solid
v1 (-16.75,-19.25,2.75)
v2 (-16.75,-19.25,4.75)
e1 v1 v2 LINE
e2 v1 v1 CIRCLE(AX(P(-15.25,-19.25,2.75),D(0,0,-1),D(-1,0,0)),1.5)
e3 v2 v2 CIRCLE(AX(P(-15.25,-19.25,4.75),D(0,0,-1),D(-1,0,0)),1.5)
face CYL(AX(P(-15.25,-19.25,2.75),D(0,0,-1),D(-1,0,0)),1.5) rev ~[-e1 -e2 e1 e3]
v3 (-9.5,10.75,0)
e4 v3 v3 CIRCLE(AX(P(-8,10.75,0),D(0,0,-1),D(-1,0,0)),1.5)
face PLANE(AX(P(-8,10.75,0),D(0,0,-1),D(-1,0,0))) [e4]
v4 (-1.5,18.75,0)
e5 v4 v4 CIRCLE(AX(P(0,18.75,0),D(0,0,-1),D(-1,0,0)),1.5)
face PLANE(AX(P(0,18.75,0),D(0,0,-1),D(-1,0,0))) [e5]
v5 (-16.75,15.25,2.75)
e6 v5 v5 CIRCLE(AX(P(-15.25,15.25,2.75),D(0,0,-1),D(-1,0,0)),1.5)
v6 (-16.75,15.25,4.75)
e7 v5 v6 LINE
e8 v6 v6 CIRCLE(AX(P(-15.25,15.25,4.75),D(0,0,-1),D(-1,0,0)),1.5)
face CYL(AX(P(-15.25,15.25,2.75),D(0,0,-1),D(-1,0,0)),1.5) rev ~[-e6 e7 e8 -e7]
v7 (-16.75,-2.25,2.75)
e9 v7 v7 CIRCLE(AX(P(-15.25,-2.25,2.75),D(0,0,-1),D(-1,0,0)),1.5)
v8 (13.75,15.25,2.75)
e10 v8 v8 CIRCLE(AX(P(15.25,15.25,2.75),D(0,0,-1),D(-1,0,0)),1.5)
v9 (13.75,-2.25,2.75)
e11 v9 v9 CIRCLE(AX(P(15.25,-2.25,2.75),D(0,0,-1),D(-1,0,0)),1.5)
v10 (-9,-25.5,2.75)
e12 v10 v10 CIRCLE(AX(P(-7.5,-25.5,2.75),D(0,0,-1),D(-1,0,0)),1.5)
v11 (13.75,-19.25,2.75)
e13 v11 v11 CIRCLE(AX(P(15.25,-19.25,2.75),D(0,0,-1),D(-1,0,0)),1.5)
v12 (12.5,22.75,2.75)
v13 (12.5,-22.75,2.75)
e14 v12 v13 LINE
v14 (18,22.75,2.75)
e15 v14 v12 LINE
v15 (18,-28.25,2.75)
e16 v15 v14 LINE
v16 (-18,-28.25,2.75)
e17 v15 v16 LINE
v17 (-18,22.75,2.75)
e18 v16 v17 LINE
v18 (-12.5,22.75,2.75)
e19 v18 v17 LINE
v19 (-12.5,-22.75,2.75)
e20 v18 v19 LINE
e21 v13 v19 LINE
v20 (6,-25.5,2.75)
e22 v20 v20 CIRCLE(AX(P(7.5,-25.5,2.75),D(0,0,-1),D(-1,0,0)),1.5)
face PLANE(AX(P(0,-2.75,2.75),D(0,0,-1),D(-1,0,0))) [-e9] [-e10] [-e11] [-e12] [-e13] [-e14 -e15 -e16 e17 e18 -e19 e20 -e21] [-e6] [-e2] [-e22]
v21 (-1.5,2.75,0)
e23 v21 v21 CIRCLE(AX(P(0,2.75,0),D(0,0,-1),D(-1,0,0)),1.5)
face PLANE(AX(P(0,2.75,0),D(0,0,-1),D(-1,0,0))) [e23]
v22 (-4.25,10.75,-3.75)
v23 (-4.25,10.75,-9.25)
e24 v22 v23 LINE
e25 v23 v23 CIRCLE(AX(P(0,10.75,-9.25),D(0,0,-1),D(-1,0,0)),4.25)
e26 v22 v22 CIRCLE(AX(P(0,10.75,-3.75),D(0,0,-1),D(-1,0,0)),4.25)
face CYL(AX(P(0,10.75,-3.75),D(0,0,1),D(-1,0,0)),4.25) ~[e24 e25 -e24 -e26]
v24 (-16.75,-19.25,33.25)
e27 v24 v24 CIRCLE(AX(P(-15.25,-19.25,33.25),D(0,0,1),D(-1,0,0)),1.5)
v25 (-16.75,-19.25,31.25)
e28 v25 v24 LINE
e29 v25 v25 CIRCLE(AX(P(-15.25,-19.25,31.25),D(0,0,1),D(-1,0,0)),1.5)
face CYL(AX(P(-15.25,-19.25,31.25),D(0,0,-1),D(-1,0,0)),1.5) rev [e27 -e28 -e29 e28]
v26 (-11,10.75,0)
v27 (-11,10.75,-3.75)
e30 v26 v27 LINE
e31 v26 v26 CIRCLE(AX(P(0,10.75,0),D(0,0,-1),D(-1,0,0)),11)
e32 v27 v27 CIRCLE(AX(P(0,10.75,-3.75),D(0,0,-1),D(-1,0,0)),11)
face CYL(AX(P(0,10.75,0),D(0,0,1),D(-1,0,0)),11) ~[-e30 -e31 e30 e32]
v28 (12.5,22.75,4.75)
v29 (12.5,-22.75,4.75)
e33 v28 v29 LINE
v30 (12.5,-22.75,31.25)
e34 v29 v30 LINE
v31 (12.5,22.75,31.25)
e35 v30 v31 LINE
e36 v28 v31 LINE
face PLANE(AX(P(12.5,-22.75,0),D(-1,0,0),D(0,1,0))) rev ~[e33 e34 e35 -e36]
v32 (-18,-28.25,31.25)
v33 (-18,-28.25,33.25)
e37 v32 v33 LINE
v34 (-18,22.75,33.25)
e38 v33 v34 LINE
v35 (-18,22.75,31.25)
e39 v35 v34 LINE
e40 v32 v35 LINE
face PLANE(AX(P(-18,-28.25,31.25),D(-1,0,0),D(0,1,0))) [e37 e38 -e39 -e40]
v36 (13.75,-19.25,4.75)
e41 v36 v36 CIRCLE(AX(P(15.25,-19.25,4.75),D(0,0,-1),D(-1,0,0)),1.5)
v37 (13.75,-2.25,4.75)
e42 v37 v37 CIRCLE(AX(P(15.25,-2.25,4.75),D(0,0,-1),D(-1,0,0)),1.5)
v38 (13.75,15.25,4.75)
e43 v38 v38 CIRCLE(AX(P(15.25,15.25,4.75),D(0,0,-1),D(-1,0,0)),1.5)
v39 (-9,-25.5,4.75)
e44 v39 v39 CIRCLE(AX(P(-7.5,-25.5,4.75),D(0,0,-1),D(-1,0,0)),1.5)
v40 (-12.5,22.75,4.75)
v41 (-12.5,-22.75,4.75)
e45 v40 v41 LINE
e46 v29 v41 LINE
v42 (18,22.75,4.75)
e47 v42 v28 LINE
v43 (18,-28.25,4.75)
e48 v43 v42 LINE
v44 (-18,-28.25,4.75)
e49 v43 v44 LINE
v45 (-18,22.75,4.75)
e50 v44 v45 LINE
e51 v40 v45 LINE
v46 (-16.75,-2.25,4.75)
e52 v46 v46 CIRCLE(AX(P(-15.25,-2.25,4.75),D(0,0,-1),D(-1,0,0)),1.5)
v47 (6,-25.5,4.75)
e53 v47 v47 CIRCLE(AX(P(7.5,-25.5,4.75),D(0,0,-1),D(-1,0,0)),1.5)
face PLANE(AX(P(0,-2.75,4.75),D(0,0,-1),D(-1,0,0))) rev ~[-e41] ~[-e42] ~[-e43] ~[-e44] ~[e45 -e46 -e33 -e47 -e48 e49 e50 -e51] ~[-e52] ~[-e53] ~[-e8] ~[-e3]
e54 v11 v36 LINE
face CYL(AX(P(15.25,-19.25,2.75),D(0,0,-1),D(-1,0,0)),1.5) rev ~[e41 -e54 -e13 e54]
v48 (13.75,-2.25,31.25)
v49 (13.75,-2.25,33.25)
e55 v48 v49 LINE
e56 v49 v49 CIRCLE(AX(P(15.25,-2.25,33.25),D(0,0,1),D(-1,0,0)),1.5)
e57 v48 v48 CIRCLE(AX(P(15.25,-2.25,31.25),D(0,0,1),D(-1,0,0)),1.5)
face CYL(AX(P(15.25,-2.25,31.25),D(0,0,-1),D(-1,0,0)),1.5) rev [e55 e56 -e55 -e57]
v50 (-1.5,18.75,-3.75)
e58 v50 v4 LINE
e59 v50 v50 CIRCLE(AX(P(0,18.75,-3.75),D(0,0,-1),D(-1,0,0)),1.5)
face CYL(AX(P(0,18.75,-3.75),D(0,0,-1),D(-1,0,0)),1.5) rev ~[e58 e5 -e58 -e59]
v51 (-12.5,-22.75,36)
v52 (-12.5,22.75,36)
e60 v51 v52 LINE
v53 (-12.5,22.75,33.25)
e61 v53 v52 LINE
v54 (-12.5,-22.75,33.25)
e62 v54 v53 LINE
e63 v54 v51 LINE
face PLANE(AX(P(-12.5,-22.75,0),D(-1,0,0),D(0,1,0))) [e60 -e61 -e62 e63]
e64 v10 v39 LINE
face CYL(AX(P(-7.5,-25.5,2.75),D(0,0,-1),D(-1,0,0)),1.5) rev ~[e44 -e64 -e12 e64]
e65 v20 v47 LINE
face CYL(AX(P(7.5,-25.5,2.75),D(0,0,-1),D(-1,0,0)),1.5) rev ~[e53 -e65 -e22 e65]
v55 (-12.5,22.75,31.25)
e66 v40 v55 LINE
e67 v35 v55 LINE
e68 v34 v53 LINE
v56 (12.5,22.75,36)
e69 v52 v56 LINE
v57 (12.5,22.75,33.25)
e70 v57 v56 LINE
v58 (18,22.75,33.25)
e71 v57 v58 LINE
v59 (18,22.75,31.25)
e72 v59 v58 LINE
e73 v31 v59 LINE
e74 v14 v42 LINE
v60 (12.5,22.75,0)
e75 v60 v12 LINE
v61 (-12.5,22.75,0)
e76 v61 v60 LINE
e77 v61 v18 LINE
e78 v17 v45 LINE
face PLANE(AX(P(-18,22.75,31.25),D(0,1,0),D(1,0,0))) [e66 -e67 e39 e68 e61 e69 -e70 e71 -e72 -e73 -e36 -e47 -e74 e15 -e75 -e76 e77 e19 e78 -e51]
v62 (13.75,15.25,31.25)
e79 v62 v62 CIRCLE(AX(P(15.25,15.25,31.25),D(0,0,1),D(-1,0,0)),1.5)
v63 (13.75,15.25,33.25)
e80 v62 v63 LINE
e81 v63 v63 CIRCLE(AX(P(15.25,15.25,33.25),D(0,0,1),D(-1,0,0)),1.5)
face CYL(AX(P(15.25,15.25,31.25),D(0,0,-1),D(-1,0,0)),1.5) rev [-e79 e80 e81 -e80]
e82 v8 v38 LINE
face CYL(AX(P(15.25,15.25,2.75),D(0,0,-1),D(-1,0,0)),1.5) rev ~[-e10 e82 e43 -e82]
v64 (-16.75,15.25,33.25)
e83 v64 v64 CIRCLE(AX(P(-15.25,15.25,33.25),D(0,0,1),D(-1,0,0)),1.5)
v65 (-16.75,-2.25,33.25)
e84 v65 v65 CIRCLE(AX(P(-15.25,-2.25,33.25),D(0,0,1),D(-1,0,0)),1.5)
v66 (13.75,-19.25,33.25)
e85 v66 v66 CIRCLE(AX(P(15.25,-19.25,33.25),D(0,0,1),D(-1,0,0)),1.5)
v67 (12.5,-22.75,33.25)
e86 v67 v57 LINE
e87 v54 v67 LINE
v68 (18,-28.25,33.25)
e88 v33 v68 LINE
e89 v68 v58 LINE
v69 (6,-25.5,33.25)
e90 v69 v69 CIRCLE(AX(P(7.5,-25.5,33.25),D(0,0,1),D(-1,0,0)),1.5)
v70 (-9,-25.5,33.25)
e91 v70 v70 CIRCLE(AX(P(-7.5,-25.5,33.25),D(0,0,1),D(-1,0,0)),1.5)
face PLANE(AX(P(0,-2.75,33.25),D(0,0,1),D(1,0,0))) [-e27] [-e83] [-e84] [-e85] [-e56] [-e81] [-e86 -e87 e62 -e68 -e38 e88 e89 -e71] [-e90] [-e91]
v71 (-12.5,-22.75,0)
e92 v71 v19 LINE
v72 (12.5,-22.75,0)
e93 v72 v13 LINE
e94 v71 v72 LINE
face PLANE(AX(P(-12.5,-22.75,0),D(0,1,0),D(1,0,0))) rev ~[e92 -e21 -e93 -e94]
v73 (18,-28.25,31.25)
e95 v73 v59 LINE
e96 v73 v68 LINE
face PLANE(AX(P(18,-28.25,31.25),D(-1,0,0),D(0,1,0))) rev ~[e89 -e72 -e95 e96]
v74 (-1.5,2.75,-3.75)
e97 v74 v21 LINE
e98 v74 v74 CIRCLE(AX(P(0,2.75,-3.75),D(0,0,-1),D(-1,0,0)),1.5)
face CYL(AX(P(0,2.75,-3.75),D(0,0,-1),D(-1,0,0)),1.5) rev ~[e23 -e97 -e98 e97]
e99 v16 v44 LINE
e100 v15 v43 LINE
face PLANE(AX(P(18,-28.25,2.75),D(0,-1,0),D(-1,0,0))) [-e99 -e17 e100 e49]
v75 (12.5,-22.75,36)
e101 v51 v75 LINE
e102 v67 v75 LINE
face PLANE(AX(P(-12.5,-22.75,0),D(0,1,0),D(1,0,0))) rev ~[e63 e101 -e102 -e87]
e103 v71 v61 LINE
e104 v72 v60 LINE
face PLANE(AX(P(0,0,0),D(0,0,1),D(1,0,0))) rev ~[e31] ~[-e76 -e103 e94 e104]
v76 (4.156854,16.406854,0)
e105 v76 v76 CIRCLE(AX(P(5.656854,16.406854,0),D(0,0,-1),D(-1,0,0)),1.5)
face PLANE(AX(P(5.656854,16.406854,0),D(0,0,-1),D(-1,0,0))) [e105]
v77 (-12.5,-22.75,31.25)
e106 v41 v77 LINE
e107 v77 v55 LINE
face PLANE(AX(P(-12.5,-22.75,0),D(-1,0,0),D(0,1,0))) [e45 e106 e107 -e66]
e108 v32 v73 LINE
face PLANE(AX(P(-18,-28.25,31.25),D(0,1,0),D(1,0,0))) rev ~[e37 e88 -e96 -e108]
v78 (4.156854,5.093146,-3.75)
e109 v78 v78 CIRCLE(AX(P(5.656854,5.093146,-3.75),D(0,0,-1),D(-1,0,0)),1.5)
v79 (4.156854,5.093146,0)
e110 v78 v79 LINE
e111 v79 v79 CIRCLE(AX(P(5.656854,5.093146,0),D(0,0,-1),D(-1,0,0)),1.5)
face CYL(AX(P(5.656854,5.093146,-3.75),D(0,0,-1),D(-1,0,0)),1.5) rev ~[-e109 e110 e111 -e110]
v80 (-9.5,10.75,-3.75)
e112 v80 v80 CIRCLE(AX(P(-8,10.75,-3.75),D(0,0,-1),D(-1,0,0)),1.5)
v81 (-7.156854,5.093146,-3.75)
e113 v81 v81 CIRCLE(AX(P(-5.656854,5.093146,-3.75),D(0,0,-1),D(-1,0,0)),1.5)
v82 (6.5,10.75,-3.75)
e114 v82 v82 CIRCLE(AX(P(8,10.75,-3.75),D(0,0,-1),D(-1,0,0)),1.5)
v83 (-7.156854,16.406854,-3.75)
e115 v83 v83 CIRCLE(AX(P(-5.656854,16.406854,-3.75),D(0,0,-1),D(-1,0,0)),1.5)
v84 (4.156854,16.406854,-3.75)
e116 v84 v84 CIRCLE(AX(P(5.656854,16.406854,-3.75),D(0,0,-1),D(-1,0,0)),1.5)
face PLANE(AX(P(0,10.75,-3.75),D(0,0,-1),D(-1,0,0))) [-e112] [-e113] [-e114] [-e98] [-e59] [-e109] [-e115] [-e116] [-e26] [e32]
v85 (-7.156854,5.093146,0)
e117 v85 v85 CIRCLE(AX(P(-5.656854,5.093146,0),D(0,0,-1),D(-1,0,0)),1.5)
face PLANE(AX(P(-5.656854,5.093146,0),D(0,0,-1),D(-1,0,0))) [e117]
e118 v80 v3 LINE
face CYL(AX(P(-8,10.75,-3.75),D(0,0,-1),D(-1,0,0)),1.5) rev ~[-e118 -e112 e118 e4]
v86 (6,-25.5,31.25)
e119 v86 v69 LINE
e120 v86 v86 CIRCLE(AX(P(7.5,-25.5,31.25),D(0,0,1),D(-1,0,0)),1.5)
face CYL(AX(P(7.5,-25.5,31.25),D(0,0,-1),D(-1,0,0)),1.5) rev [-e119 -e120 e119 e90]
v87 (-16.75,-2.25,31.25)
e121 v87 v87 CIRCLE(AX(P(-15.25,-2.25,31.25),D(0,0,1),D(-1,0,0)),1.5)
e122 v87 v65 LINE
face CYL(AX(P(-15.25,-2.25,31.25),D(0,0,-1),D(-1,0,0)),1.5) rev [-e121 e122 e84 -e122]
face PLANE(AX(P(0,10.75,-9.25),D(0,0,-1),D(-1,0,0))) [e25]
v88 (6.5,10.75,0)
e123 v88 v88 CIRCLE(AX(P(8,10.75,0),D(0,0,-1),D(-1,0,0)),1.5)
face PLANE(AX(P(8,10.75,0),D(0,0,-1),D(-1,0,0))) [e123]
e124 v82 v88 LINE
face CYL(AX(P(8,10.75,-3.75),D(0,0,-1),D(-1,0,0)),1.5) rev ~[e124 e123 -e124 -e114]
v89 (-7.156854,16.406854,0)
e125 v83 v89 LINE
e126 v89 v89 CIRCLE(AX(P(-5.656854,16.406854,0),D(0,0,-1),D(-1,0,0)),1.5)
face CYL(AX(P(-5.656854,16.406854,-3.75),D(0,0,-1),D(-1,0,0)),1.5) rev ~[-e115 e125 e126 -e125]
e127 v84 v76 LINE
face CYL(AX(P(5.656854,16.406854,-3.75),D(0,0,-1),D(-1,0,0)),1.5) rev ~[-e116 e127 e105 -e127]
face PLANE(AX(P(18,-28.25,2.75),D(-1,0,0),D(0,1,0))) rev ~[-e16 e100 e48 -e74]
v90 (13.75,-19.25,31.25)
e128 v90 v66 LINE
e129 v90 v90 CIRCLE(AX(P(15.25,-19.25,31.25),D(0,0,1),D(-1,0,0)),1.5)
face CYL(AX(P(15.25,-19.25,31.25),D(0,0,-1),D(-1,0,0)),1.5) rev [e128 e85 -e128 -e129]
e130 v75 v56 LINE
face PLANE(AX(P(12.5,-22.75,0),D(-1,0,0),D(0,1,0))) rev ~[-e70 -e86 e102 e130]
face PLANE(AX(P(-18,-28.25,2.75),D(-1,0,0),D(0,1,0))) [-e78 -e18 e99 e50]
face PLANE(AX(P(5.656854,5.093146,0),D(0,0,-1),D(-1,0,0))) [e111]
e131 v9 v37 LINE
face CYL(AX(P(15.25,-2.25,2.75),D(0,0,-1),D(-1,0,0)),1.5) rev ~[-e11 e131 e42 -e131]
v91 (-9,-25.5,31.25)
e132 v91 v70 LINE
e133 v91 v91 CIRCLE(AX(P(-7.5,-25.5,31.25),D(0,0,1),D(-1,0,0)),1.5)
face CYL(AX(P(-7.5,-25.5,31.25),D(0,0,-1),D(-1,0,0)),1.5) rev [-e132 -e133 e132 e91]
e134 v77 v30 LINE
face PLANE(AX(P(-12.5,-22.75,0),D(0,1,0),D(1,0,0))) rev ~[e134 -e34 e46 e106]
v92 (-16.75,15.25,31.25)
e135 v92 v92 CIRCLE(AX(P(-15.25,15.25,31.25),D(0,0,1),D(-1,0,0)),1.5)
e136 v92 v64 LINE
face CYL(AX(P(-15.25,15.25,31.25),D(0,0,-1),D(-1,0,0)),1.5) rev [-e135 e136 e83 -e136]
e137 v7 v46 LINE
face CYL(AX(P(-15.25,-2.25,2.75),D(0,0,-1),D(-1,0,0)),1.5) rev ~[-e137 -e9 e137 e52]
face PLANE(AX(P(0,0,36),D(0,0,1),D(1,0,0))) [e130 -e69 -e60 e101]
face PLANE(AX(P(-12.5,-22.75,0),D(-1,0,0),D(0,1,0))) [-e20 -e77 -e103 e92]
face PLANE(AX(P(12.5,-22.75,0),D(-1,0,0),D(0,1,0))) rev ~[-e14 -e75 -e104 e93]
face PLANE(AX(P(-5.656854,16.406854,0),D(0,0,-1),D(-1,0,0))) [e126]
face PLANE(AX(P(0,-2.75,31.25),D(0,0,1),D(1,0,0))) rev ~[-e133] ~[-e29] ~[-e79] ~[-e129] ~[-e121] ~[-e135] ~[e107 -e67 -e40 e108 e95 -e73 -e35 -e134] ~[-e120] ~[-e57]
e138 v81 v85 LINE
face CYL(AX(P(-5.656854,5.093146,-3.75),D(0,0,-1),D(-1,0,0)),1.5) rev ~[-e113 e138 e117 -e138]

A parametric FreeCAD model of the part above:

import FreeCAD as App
import Part
import Sketcher

V = App.Vector


def add_polygon(sketch, points):
    """Adds a closed chain of lines whose ends are joined by coincident constraints."""
    first, n = sketch.GeometryCount, len(points)
    for a, b in zip(points, points[1:] + points[:1]):
        sketch.addGeometry(Part.LineSegment(App.Vector(*a, 0), App.Vector(*b, 0)), False)
    for i in range(n):
        sketch.addConstraint(Sketcher.Constraint("Coincident", first + i, 2, first + (i + 1) % n, 1))

doc = App.newDocument("Part")
body = doc.addObject("PartDesign::Body", "Body")

# Sketch on XY plane
sketch1 = doc.addObject("Sketcher::SketchObject", "Sketch")
body.addObject(sketch1)
sketch1.AttachmentSupport = (doc.XY_Plane, [""])
sketch1.MapMode = "FlatFace"
add_polygon(sketch1, [(-12, 23), (-12, -23), (12, -23), (12, 23)])  # lines 0-3
sketch1.addConstraint([
    Sketcher.Constraint("Vertical", 0),
    Sketcher.Constraint("Horizontal", 1),
    Sketcher.Constraint("Vertical", 2),
    Sketcher.Constraint("Horizontal", 3),
    Sketcher.Constraint("Symmetric", 0, 2, 2, 2, -1, 1),
    Sketcher.Constraint("DistanceX", 1, 1, 1, 2, 25.0),
    Sketcher.Constraint("DistanceY", 0, 2, 0, 1, 45.5),
])
pad1 = doc.addObject("PartDesign::Pad", "Pad")
body.addObject(pad1)
pad1.Profile = sketch1
pad1.Length = 36

# Sketch on XY plane
sketch2 = doc.addObject("Sketcher::SketchObject", "Sketch001")
body.addObject(sketch2)
sketch2.AttachmentSupport = (doc.XY_Plane, [""])
sketch2.MapMode = "FlatFace"
sketch2.AttachmentOffset = App.Placement(V(0, 0, 2.75), App.Rotation())
add_polygon(sketch2, [(18, 22.8), (18, -28.2), (-18, -28.2), (-18, 22.8)])  # lines 0-3
sketch2.addGeometry(Part.Circle(V(15.2, -19.2, 0), V(0, 0, 1), 1.5), False)  # 4
sketch2.addGeometry(Part.Circle(V(7.5, -25.5, 0), V(0, 0, 1), 1.5), False)  # 5
sketch2.addGeometry(Part.Circle(V(-7.5, -25.5, 0), V(0, 0, 1), 1.5), False)  # 6
sketch2.addGeometry(Part.Circle(V(-15.2, -19.2, 0), V(0, 0, 1), 1.5), False)  # 7
sketch2.addGeometry(Part.Circle(V(15.2, -2.2, 0), V(0, 0, 1), 1.5), False)  # 8
sketch2.addGeometry(Part.Circle(V(15.2, 15.2, 0), V(0, 0, 1), 1.5), False)  # 9
sketch2.addGeometry(Part.Circle(V(-15.2, -2.2, 0), V(0, 0, 1), 1.5), False)  # 10
sketch2.addGeometry(Part.Circle(V(-15.2, 15.2, 0), V(0, 0, 1), 1.5), False)  # 11
sketch2.addConstraint([
    Sketcher.Constraint("Vertical", 0),
    Sketcher.Constraint("Horizontal", 1),
    Sketcher.Constraint("Vertical", 2),
    Sketcher.Constraint("Horizontal", 3),
    Sketcher.Constraint("Equal", 4, 5),
    Sketcher.Constraint("Equal", 5, 6),
    Sketcher.Constraint("Equal", 6, 7),
    Sketcher.Constraint("Equal", 7, 8),
    Sketcher.Constraint("Equal", 8, 9),
    Sketcher.Constraint("Equal", 9, 10),
    Sketcher.Constraint("Equal", 10, 11),
    Sketcher.Constraint("Symmetric", 5, 3, 6, 3, -2),
    Sketcher.Constraint("Symmetric", 4, 3, 7, 3, -2),
    Sketcher.Constraint("Symmetric", 8, 3, 10, 3, -2),
    Sketcher.Constraint("Symmetric", 9, 3, 11, 3, -2),
    Sketcher.Constraint("Vertical", 4, 3, 8, 3),
    Sketcher.Constraint("Vertical", 8, 3, 9, 3),
    Sketcher.Constraint("Diameter", 4, 3.0),
    Sketcher.Constraint("DistanceX", 1, 2, 1, 1, 36.0),
    Sketcher.Constraint("DistanceY", 0, 2, 0, 1, 51.0),
    Sketcher.Constraint("DistanceX", -1, 1, 0, 2, 18.0),
    Sketcher.Constraint("DistanceX", 6, 3, 5, 3, 15.0),
    Sketcher.Constraint("DistanceY", 4, 3, 8, 3, 17.0),
    Sketcher.Constraint("DistanceY", 0, 2, 4, 3, 9.0),
    Sketcher.Constraint("DistanceY", 5, 3, -1, 1, 25.5),
    Sketcher.Constraint("DistanceX", 7, 3, 4, 3, 30.5),
    Sketcher.Constraint("DistanceY", 8, 3, 9, 3, 17.5),
    Sketcher.Constraint("DistanceY", 4, 3, -1, 1, 19.25),
])
pad2 = doc.addObject("PartDesign::Pad", "Pad001")
body.addObject(pad2)
pad2.Profile = sketch2
pad2.Length = 2

# Sketch on XY plane
sketch3 = doc.addObject("Sketcher::SketchObject", "Sketch002")
body.addObject(sketch3)
sketch3.AttachmentSupport = (doc.XY_Plane, [""])
sketch3.MapMode = "FlatFace"
sketch3.addGeometry(Part.Circle(V(0, 11, 0), V(0, 0, 1), 11), False)
sketch3.addConstraint([
    Sketcher.Constraint("PointOnObject", 0, 3, -2),
    Sketcher.Constraint("Diameter", 0, 22.0),
    Sketcher.Constraint("DistanceY", -1, 1, 0, 3, 10.75),
])
pad3 = doc.addObject("PartDesign::Pad", "Pad002")
body.addObject(pad3)
pad3.Profile = sketch3
pad3.Length = 3.75
pad3.Reversed = True

# Sketch on XY plane
sketch4 = doc.addObject("Sketcher::SketchObject", "Sketch003")
body.addObject(sketch4)
sketch4.AttachmentSupport = (doc.XY_Plane, [""])
sketch4.MapMode = "FlatFace"
sketch4.AttachmentOffset = App.Placement(V(0, 0, -3.75), App.Rotation())
sketch4.addGeometry([
    Part.Circle(V(0, 18.8, 0), V(0, 0, 1), 1.5),  # 0
    Part.Circle(V(5.7, 16.4, 0), V(0, 0, 1), 1.5),  # 1
    Part.Circle(V(8, 10.8, 0), V(0, 0, 1), 1.5),  # 2
    Part.Circle(V(5.7, 5.1, 0), V(0, 0, 1), 1.5),  # 3
    Part.Circle(V(0, 2.8, 0), V(0, 0, 1), 1.5),  # 4
    Part.Circle(V(-5.7, 5.1, 0), V(0, 0, 1), 1.5),  # 5
    Part.Circle(V(-8, 10.8, 0), V(0, 0, 1), 1.5),  # 6
    Part.Circle(V(-5.7, 16.4, 0), V(0, 0, 1), 1.5),  # 7
], False)
sketch4.addConstraint([
    Sketcher.Constraint("Equal", 0, 1),
    Sketcher.Constraint("Equal", 1, 2),
    Sketcher.Constraint("Equal", 2, 3),
    Sketcher.Constraint("Equal", 3, 4),
    Sketcher.Constraint("Equal", 4, 5),
    Sketcher.Constraint("Equal", 5, 6),
    Sketcher.Constraint("Equal", 6, 7),
    Sketcher.Constraint("Symmetric", 3, 3, 5, 3, -2),
    Sketcher.Constraint("Symmetric", 2, 3, 6, 3, -2),
    Sketcher.Constraint("Symmetric", 1, 3, 7, 3, -2),
    Sketcher.Constraint("PointOnObject", 0, 3, -2),
    Sketcher.Constraint("PointOnObject", 4, 3, -2),
    Sketcher.Constraint("Vertical", 1, 3, 3, 3),
    Sketcher.Constraint("Diameter", 0, 3.0),
    Sketcher.Constraint("DistanceX", -1, 1, 2, 3, 8.0),
    Sketcher.Constraint("DistanceY", 2, 3, 0, 3, 8.0),
    Sketcher.Constraint("DistanceY", 4, 3, 2, 3, 8.0),
    Sketcher.Constraint("DistanceY", -1, 1, 0, 3, 18.75),
    Sketcher.Constraint("DistanceY", 3, 3, 1, 3, 11.313708),
    Sketcher.Constraint("DistanceX", 5, 3, 3, 3, 11.313708),
    Sketcher.Constraint("DistanceY", -1, 1, 1, 3, 16.406854),
])
pocket1 = doc.addObject("PartDesign::Pocket", "Pocket")
body.addObject(pocket1)
pocket1.Profile = sketch4
pocket1.Length = 3.75
pocket1.Reversed = True

# Sketch on XY plane
sketch5 = doc.addObject("Sketcher::SketchObject", "Sketch004")
body.addObject(sketch5)
sketch5.AttachmentSupport = (doc.XY_Plane, [""])
sketch5.MapMode = "FlatFace"
sketch5.AttachmentOffset = App.Placement(V(0, 0, -3.75), App.Rotation())
sketch5.addGeometry(Part.Circle(V(0, 10.8, 0), V(0, 0, 1), 4.2), False)
sketch5.addConstraint([
    Sketcher.Constraint("PointOnObject", 0, 3, -2),
    Sketcher.Constraint("Diameter", 0, 8.5),
    Sketcher.Constraint("DistanceY", -1, 1, 0, 3, 10.75),
])
pad4 = doc.addObject("PartDesign::Pad", "Pad003")
body.addObject(pad4)
pad4.Profile = sketch5
pad4.Length = 5.5
pad4.Reversed = True

# Sketch on XY plane
sketch6 = doc.addObject("Sketcher::SketchObject", "Sketch005")
body.addObject(sketch6)
sketch6.AttachmentSupport = (doc.XY_Plane, [""])
sketch6.MapMode = "FlatFace"
sketch6.AttachmentOffset = App.Placement(V(0, 0, 31.25), App.Rotation())
add_polygon(sketch6, [(-18, 22.8), (-18, -28.2), (18, -28.2), (18, 22.8)])  # lines 0-3
sketch6.addGeometry(Part.Circle(V(-15.2, -19.2, 0), V(0, 0, 1), 1.5), False)  # 4
sketch6.addGeometry(Part.Circle(V(-7.5, -25.5, 0), V(0, 0, 1), 1.5), False)  # 5
sketch6.addGeometry(Part.Circle(V(7.5, -25.5, 0), V(0, 0, 1), 1.5), False)  # 6
sketch6.addGeometry(Part.Circle(V(15.2, -19.2, 0), V(0, 0, 1), 1.5), False)  # 7
sketch6.addGeometry(Part.Circle(V(-15.2, -2.2, 0), V(0, 0, 1), 1.5), False)  # 8
sketch6.addGeometry(Part.Circle(V(-15.2, 15.2, 0), V(0, 0, 1), 1.5), False)  # 9
sketch6.addGeometry(Part.Circle(V(15.2, -2.2, 0), V(0, 0, 1), 1.5), False)  # 10
sketch6.addGeometry(Part.Circle(V(15.2, 15.2, 0), V(0, 0, 1), 1.5), False)  # 11
sketch6.addConstraint([
    Sketcher.Constraint("Vertical", 0),
    Sketcher.Constraint("Horizontal", 1),
    Sketcher.Constraint("Vertical", 2),
    Sketcher.Constraint("Horizontal", 3),
    Sketcher.Constraint("Equal", 4, 5),
    Sketcher.Constraint("Equal", 5, 6),
    Sketcher.Constraint("Equal", 6, 7),
    Sketcher.Constraint("Equal", 7, 8),
    Sketcher.Constraint("Equal", 8, 9),
    Sketcher.Constraint("Equal", 9, 10),
    Sketcher.Constraint("Equal", 10, 11),
    Sketcher.Constraint("Symmetric", 5, 3, 6, 3, -2),
    Sketcher.Constraint("Symmetric", 4, 3, 7, 3, -2),
    Sketcher.Constraint("Symmetric", 8, 3, 10, 3, -2),
    Sketcher.Constraint("Symmetric", 9, 3, 11, 3, -2),
    Sketcher.Constraint("Vertical", 4, 3, 8, 3),
    Sketcher.Constraint("Vertical", 8, 3, 9, 3),
    Sketcher.Constraint("Diameter", 4, 3.0),
    Sketcher.Constraint("DistanceX", 1, 1, 1, 2, 36.0),
    Sketcher.Constraint("DistanceY", 0, 2, 0, 1, 51.0),
    Sketcher.Constraint("DistanceX", 0, 2, -1, 1, 18.0),
    Sketcher.Constraint("DistanceX", 5, 3, 6, 3, 15.0),
    Sketcher.Constraint("DistanceY", 4, 3, 8, 3, 17.0),
    Sketcher.Constraint("DistanceY", 0, 2, 4, 3, 9.0),
    Sketcher.Constraint("DistanceY", 5, 3, -1, 1, 25.5),
    Sketcher.Constraint("DistanceX", 4, 3, 7, 3, 30.5),
    Sketcher.Constraint("DistanceY", 8, 3, 9, 3, 17.5),
    Sketcher.Constraint("DistanceY", 4, 3, -1, 1, 19.25),
])
pad5 = doc.addObject("PartDesign::Pad", "Pad004")
body.addObject(pad5)
pad5.Profile = sketch6
pad5.Length = 2

doc.recompute()
